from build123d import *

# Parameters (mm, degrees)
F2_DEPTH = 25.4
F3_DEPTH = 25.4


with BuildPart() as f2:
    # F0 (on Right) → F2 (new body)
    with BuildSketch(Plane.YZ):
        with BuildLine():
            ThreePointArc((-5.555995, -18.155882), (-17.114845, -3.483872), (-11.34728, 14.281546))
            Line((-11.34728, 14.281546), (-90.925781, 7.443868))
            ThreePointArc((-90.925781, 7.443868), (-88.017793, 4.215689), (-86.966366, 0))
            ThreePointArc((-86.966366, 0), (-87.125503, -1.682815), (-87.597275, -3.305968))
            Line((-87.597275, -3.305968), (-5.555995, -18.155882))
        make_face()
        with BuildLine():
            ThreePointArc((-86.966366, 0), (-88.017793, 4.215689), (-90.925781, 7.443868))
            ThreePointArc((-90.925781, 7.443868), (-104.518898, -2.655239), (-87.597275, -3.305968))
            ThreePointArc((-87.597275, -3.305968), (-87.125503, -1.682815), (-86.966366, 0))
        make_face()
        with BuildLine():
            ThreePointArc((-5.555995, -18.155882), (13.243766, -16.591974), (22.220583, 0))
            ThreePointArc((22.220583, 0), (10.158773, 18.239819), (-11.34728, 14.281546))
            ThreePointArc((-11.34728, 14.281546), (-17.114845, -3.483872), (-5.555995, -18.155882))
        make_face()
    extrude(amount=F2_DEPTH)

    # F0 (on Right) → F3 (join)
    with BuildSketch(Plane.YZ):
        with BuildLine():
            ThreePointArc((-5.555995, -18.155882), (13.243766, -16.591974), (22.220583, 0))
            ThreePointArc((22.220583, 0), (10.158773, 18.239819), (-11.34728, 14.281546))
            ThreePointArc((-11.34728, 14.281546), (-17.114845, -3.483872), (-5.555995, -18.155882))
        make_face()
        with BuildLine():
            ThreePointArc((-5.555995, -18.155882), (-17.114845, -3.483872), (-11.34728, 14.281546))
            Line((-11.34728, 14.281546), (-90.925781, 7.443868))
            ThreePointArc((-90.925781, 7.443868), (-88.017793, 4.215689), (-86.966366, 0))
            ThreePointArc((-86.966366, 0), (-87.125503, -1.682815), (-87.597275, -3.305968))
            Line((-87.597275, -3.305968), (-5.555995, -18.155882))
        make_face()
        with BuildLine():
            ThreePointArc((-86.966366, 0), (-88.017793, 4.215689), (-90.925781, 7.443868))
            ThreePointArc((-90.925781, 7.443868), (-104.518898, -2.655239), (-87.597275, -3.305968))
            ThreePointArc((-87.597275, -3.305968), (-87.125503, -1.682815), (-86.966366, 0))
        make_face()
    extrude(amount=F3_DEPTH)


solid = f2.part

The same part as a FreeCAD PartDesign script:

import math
import FreeCAD as App
import Part
import Sketcher
Q = App.Units.Quantity

doc = App.newDocument("Part")
body = doc.addObject("PartDesign::Body", "Body")

sketch1 = body.newObject("Sketcher::SketchObject", "Sketch")
sketch1.AttachmentSupport = (doc.getObject("YZ_Plane"), [""])
sketch1.MapMode = "FlatFace"
sketch1.addGeometry([
    Part.LineSegment(App.Vector(-11, 14, 0), App.Vector(-91, 7, 0)),
    Part.ArcOfCircle(Part.Circle(App.Vector(-96, 0, 0), App.Vector(0, 0, 1), 9), math.radians(56), math.radians(338)),
    Part.LineSegment(App.Vector(-88, -3, 0), App.Vector(-6, -18, 0)),
    Part.ArcOfCircle(Part.Circle(App.Vector(2, 0, 0), App.Vector(0, 0, 1), 20), math.radians(-114), math.radians(0)),
    Part.ArcOfCircle(Part.Circle(App.Vector(2, 0, 0), App.Vector(0, 0, 1), 20), math.radians(0), math.radians(134)),
], False)
sketch1.addConstraint([
    Sketcher.Constraint("Coincident", 0, 2, 1, 1),
    Sketcher.Constraint("Coincident", 1, 2, 2, 1),
    Sketcher.Constraint("Coincident", 2, 2, 3, 1),
    Sketcher.Constraint("Tangent", 3, 2, 4, 1),
    Sketcher.Constraint("Coincident", 4, 2, 0, 1),
    Sketcher.Constraint("Equal", 3, 4),
    Sketcher.Constraint("PointOnObject", 1, 3, -1),
    Sketcher.Constraint("PointOnObject", 3, 3, -1),
    Sketcher.Constraint("PointOnObject", 3, 2, -1),
    Sketcher.Constraint("Radius", 1, 8.9771),
    Sketcher.Constraint("Radius", 3, 19.821994),
    Sketcher.Constraint("Distance", 0, 79.87172),
    Sketcher.Constraint("DistanceX", -1, 1, 3, 3, 2.398589),
    Sketcher.Constraint("DistanceX", 0, 2, -1, 1, 90.925781),
    Sketcher.Constraint("DistanceY", 1, 2, -1, 1, 3.305968),
    Sketcher.Constraint("DistanceY", 2, 2, -1, 1, 18.155882),
    Sketcher.Constraint("DistanceX", 4, 2, -1, 1, 11.34728),
])
pad1 = body.newObject("PartDesign::Pad", "Pad")
pad1.Profile = sketch1
pad1.Length = Q("1 in")

sketch2 = body.newObject("Sketcher::SketchObject", "Sketch001")
sketch2.AttachmentSupport = (doc.getObject("YZ_Plane"), [""])
sketch2.MapMode = "FlatFace"
sketch2.addGeometry([
    Part.ArcOfCircle(Part.Circle(App.Vector(2, 0, 0), App.Vector(0, 0, 1), 20), math.radians(-114), math.radians(0)),
    Part.ArcOfCircle(Part.Circle(App.Vector(2, 0, 0), App.Vector(0, 0, 1), 20), math.radians(0), math.radians(134)),
    Part.LineSegment(App.Vector(-11, 14, 0), App.Vector(-91, 7, 0)),
    Part.ArcOfCircle(Part.Circle(App.Vector(-96, 0, 0), App.Vector(0, 0, 1), 9), math.radians(56), math.radians(338)),
    Part.LineSegment(App.Vector(-88, -3, 0), App.Vector(-6, -18, 0)),
], False)
sketch2.addConstraint([
    Sketcher.Constraint("Tangent", 0, 2, 1, 1),
    Sketcher.Constraint("Coincident", 1, 2, 2, 1),
    Sketcher.Constraint("Coincident", 2, 2, 3, 1),
    Sketcher.Constraint("Coincident", 3, 2, 4, 1),
    Sketcher.Constraint("Coincident", 4, 2, 0, 1),
    Sketcher.Constraint("Equal", 0, 1),
    Sketcher.Constraint("PointOnObject", 0, 3, -1),
    Sketcher.Constraint("PointOnObject", 3, 3, -1),
    Sketcher.Constraint("PointOnObject", 0, 2, -1),
    Sketcher.Constraint("Radius", 3, 8.9771),
    Sketcher.Constraint("Radius", 0, 19.821994),
    Sketcher.Constraint("DistanceY", 2, 2, 1, 2, Q("0.2691999 in")),
    Sketcher.Constraint("DistanceX", 2, 2, 1, 2, 79.578501),
    Sketcher.Constraint("DistanceX", -1, 1, 0, 3, 2.398589),
    Sketcher.Constraint("DistanceX", 1, 2, -1, 1, 11.34728),
    Sketcher.Constraint("DistanceY", 3, 2, -1, 1, 3.305968),
    Sketcher.Constraint("DistanceY", 4, 2, -1, 1, 18.155882),
])
pad2 = body.newObject("PartDesign::Pad", "Pad001")
pad2.Profile = sketch2
pad2.Length = Q("1 in")

doc.recompute()
